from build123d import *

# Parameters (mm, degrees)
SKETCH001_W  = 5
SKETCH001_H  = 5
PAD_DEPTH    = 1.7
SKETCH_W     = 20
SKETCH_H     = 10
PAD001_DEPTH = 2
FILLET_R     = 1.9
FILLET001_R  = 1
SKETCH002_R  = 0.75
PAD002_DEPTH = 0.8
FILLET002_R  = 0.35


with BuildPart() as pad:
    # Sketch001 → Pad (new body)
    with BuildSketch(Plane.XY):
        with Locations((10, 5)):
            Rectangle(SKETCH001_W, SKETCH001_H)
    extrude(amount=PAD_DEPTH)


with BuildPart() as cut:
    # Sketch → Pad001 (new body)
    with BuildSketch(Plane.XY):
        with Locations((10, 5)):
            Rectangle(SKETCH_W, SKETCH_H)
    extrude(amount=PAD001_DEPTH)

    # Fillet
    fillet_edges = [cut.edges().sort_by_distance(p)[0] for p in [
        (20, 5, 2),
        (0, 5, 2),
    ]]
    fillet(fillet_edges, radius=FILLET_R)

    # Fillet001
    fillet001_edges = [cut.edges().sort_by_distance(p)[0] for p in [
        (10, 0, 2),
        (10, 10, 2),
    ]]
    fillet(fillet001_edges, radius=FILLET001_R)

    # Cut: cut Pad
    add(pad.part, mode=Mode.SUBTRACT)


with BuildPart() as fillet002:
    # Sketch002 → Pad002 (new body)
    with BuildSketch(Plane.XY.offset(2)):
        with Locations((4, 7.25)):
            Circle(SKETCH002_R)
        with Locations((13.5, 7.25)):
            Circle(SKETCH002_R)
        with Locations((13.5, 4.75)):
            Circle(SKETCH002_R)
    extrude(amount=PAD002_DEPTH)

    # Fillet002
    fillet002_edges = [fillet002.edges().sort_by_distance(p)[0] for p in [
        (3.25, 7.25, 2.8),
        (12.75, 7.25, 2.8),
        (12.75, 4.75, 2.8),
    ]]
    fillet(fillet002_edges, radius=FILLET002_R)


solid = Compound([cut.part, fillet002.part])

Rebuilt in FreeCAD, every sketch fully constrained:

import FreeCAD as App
import Part
import Sketcher
from FreeCAD import Vector
Q = App.Units.Quantity


def edges_at(feature, points):
    """Names of the edges that pass closest to the given points."""
    edges = feature.Shape.Edges
    near = lambda p: min(range(len(edges)), key=lambda i: edges[i].distToShape(Part.Vertex(*p))[0])
    return sorted({f"Edge{near(p) + 1}" for p in points})

doc = App.newDocument("Part")
body = doc.addObject("PartDesign::Body", "Body")

# Sketch on XY plane
sketch1 = body.newObject("Sketcher::SketchObject", "Sketch")
sketch1.AttachmentSupport = (doc.getObject("XY_Plane"), [""])
sketch1.MapMode = "FlatFace"
sketch1.addGeometry([
    Part.LineSegment(Vector(8, 8, 0), Vector(8, 2, 0)),
    Part.LineSegment(Vector(8, 2, 0), Vector(12, 2, 0)),
    Part.LineSegment(Vector(12, 2, 0), Vector(12, 8, 0)),
    Part.LineSegment(Vector(12, 8, 0), Vector(8, 8, 0)),
], False)
sketch1.addConstraint([
    Sketcher.Constraint("Coincident", 0, 2, 1, 1),
    Sketcher.Constraint("Coincident", 1, 2, 2, 1),
    Sketcher.Constraint("Coincident", 2, 2, 3, 1),
    Sketcher.Constraint("Coincident", 3, 2, 0, 1),
    Sketcher.Constraint("Vertical", 0),
    Sketcher.Constraint("Horizontal", 1),
    Sketcher.Constraint("Vertical", 2),
    Sketcher.Constraint("Horizontal", 3),
    Sketcher.Constraint("Equal", 3, 0),
    Sketcher.Constraint("DistanceX", 1, 1, 1, 2, Q("5 mm")),
    Sketcher.Constraint("DistanceX", -1, 1, 0, 2, Q("7.5 mm")),
    Sketcher.Constraint("DistanceY", -1, 1, 0, 2, Q("2.5 mm")),
])
pad1 = body.newObject("PartDesign::Pad", "Pad")
pad1.Profile = sketch1
pad1.Length = 1.7
body2 = doc.addObject("PartDesign::Body", "Body001")

# Sketch on XY plane
sketch2 = body2.newObject("Sketcher::SketchObject", "Sketch001")
sketch2.AttachmentSupport = (doc.getObject("XY_Plane001"), [""])
sketch2.MapMode = "FlatFace"
sketch2.addGeometry([
    Part.LineSegment(Vector(0, 10, 0), Vector(0, 0, 0)),
    Part.LineSegment(Vector(0, 0, 0), Vector(20, 0, 0)),
    Part.LineSegment(Vector(20, 0, 0), Vector(20, 10, 0)),
    Part.LineSegment(Vector(20, 10, 0), Vector(0, 10, 0)),
], False)
sketch2.addConstraint([
    Sketcher.Constraint("Coincident", 0, 2, 1, 1),
    Sketcher.Constraint("Coincident", 1, 2, 2, 1),
    Sketcher.Constraint("Coincident", 2, 2, 3, 1),
    Sketcher.Constraint("Coincident", 3, 2, 0, 1),
    Sketcher.Constraint("Vertical", 0),
    Sketcher.Constraint("Horizontal", 1),
    Sketcher.Constraint("Vertical", 2),
    Sketcher.Constraint("Horizontal", 3),
    Sketcher.Constraint("Coincident", 0, 2, -1, 1),
    Sketcher.Constraint("DistanceX", 1, 1, 1, 2, Q("20 mm")),
    Sketcher.Constraint("DistanceY", 0, 2, 0, 1, Q("10 mm")),
])
pad2 = body2.newObject("PartDesign::Pad", "Pad001")
pad2.Profile = sketch2
pad2.Length = 2
doc.recompute()

fillet = body2.newObject("PartDesign::Fillet", "Fillet")
fillet.Base = (pad2, edges_at(pad2, [(20, 5, 2), (0, 5, 2)]))
fillet.Radius = 1.9
doc.recompute()

fillet2 = body2.newObject("PartDesign::Fillet", "Fillet001")
fillet2.Base = (fillet, edges_at(fillet, [(10, 0, 2), (10, 10, 2)]))
fillet2.Radius = 1
doc.recompute()

boolean = body2.newObject("PartDesign::Boolean", "Boolean")
boolean.Type = "Cut"
boolean.addObjects([body])
body3 = doc.addObject("PartDesign::Body", "Body002")
body3.AllowCompound = True

# Sketch on XY plane
sketch3 = body3.newObject("Sketcher::SketchObject", "Sketch002")
sketch3.AttachmentSupport = (doc.getObject("XY_Plane002"), [""])
sketch3.MapMode = "FlatFace"
sketch3.AttachmentOffset = App.Placement(Vector(0, 0, 2), App.Rotation())
sketch3.addGeometry([
    Part.Circle(Vector(4, 7.2, 0), Vector(0, 0, 1), 0.8),
    Part.Circle(Vector(13.5, 7.2, 0), Vector(0, 0, 1), 0.8),
    Part.Circle(Vector(13.5, 4.8, 0), Vector(0, 0, 1), 0.8),
], False)
sketch3.addConstraint([
    Sketcher.Constraint("Equal", 0, 1),
    Sketcher.Constraint("Equal", 1, 2),
    Sketcher.Constraint("Horizontal", 0, 3, 1, 3),
    Sketcher.Constraint("Vertical", 1, 3, 2, 3),
    Sketcher.Constraint("Diameter", 0, Q("1.5 mm")),
    Sketcher.Constraint("DistanceX", -1, 1, 0, 3, Q("4 mm")),
    Sketcher.Constraint("DistanceX", -1, 1, 1, 3, Q("13.5 mm")),
    Sketcher.Constraint("DistanceY", 2, 3, 1, 3, Q("2.5 mm")),
    Sketcher.Constraint("DistanceY", -1, 1, 0, 3, Q("7.25 mm")),
])
pad3 = body3.newObject("PartDesign::Pad", "Pad002")
pad3.Profile = sketch3
pad3.Length = 0.8
doc.recompute()

fillet3 = body3.newObject("PartDesign::Fillet", "Fillet002")
fillet3.Base = (pad3, edges_at(pad3, [(3.25, 7.25, 2.8), (12.75, 7.25, 2.8), (12.75, 4.75, 2.8)]))
fillet3.Radius = 0.35

doc.recompute()
